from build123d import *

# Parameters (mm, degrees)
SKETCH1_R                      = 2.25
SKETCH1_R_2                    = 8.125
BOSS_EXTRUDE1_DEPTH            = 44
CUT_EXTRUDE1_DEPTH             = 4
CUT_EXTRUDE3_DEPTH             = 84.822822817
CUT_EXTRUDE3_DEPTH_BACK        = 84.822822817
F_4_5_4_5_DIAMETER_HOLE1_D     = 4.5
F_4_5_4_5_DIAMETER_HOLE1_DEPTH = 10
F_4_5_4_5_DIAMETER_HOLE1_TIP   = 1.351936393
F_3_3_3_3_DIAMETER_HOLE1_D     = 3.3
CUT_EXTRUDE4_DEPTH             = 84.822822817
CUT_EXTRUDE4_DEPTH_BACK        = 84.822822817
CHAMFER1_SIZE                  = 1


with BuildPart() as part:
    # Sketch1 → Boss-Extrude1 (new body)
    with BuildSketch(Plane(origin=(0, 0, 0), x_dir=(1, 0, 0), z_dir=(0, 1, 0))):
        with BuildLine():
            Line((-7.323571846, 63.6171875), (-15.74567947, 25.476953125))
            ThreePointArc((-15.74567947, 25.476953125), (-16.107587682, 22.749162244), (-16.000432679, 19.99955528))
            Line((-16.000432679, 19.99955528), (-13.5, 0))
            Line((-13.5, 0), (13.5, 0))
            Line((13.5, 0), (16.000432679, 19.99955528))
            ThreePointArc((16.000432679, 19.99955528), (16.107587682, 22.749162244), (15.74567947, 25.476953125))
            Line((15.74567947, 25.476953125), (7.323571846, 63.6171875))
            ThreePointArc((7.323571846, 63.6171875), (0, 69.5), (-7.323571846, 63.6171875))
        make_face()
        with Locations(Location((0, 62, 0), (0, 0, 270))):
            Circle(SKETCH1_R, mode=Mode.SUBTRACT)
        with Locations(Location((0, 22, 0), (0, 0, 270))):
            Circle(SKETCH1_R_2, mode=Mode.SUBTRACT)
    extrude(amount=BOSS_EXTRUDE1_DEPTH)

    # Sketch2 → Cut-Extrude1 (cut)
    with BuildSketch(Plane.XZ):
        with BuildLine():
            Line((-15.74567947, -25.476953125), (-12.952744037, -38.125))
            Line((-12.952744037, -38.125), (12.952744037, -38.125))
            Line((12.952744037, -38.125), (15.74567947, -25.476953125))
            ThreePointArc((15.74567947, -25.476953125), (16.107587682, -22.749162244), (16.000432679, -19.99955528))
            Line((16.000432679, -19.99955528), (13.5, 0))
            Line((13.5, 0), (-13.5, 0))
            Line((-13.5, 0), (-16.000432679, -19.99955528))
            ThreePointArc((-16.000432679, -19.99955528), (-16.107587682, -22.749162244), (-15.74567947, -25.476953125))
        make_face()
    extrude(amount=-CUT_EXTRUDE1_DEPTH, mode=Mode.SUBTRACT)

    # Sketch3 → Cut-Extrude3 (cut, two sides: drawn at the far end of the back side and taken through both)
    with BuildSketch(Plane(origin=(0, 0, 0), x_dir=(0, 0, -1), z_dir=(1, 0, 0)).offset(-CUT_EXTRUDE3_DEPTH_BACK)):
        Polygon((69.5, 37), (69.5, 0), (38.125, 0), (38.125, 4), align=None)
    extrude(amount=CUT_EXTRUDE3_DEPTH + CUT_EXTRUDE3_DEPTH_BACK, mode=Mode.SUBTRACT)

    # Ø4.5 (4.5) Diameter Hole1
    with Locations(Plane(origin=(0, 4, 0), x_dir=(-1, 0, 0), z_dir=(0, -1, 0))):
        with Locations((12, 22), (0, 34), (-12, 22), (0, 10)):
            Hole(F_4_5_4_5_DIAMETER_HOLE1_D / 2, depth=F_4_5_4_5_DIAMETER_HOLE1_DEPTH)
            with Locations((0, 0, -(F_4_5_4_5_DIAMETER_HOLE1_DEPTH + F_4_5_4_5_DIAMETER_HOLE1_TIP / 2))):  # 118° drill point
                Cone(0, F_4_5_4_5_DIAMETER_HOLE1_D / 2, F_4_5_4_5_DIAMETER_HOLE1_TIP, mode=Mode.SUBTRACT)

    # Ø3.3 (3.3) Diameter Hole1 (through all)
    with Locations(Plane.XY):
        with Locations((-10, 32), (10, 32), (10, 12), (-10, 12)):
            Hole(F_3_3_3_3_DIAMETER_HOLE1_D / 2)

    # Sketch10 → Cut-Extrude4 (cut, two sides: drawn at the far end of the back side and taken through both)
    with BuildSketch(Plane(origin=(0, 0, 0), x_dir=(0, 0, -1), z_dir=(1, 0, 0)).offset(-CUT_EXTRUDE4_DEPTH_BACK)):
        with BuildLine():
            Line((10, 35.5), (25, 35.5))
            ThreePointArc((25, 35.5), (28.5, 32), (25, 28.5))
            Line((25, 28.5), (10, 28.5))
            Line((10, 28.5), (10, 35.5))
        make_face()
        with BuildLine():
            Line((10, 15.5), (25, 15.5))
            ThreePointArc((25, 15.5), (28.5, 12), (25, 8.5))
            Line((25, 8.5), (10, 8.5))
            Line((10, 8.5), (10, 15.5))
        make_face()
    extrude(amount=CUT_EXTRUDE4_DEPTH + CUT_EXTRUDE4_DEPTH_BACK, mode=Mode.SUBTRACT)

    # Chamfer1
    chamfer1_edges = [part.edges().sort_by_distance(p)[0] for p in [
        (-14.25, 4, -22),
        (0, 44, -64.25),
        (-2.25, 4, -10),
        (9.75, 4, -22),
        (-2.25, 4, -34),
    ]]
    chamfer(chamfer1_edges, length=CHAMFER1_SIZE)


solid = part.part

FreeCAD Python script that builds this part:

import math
import FreeCAD as App
import Part
import Sketcher
Q = App.Units.Quantity


def edges_at(feature, points):
    """Names of the edges that pass closest to the given points."""
    edges = feature.Shape.Edges
    near = lambda p: min(range(len(edges)), key=lambda i: edges[i].distToShape(Part.Vertex(*p))[0])
    return sorted({f"Edge{near(p) + 1}" for p in points})


def add_polygon(sketch, points):
    """Adds a closed chain of lines whose ends are joined by coincident constraints."""
    first, n = sketch.GeometryCount, len(points)
    for a, b in zip(points, points[1:] + points[:1]):
        sketch.addGeometry(Part.LineSegment(App.Vector(*a, 0), App.Vector(*b, 0)), False)
    for i in range(n):
        sketch.addConstraint(Sketcher.Constraint("Coincident", first + i, 2, first + (i + 1) % n, 1))

doc = App.newDocument("Part")
body = doc.addObject("PartDesign::Body", "Body")

# Sketch on XZ plane
sketch1 = doc.addObject("Sketcher::SketchObject", "Sketch")
body.addObject(sketch1)
sketch1.AttachmentSupport = (doc.XZ_Plane, [""])
sketch1.MapMode = "FlatFace"
sketch1.addGeometry([
    Part.LineSegment(App.Vector(-7.3, -63.6, 0), App.Vector(-15.7, -25.5, 0)),  # 0
    Part.ArcOfCircle(Part.Circle(App.Vector(0, -22, 0), App.Vector(0, 0, 1), 16.1), math.radians(172.87), math.radians(192.45)),  # 1
    Part.LineSegment(App.Vector(-16, -20, 0), App.Vector(-13.5, 0, 0)),  # 2
    Part.LineSegment(App.Vector(-13.5, 0, 0), App.Vector(13.5, 0, 0)),  # 3
    Part.LineSegment(App.Vector(13.5, 0, 0), App.Vector(16, -20, 0)),  # 4
    Part.ArcOfCircle(Part.Circle(App.Vector(0, -22, 0), App.Vector(0, 0, 1), 16.1), math.radians(-12.45), math.radians(7.13)),  # 5
    Part.LineSegment(App.Vector(15.7, -25.5, 0), App.Vector(7.3, -63.6, 0)),  # 6
    Part.ArcOfCircle(Part.Circle(App.Vector(0, -62, 0), App.Vector(0, 0, 1), 7.5), math.radians(-168), math.radians(-12)),  # 7
    Part.Circle(App.Vector(0, -22, 0), App.Vector(0, 0, 1), 8.1),  # 8
    Part.Circle(App.Vector(0, -62, 0), App.Vector(0, 0, 1), 2.2),  # 9
], False)
sketch1.addConstraint([
    Sketcher.Constraint("Tangent", 0, 2, 1, 2),
    Sketcher.Constraint("Tangent", 1, 1, 2, 1),
    Sketcher.Constraint("Coincident", 2, 2, 3, 1),
    Sketcher.Constraint("Coincident", 3, 2, 4, 1),
    Sketcher.Constraint("Tangent", 4, 2, 5, 2),
    Sketcher.Constraint("Tangent", 5, 1, 6, 1),
    Sketcher.Constraint("Tangent", 6, 2, 7, 2),
    Sketcher.Constraint("Tangent", 7, 1, 0, 1),
    Sketcher.Constraint("Horizontal", 3),
    Sketcher.Constraint("Coincident", 5, 3, 1, 3),
    Sketcher.Constraint("Coincident", 8, 3, 1, 3),
    Sketcher.Constraint("Coincident", 9, 3, 7, 3),
    Sketcher.Constraint("Equal", 1, 5),
    Sketcher.Constraint("Symmetric", 2, 2, 3, 2, -1, 1),
    Sketcher.Constraint("Symmetric", 0, 2, 5, 1, -2),
    Sketcher.Constraint("Diameter", 9, Q("4.5 mm")),
    Sketcher.Constraint("Radius", 7, Q("7.5 mm")),
    Sketcher.Constraint("Diameter", 8, Q("16.25 mm")),
    Sketcher.Constraint("DistanceX", 3, 1, 3, 2, Q("27 mm")),
    Sketcher.Constraint("DistanceY", 1, 3, -1, 1, Q("22 mm")),
    Sketcher.Constraint("DistanceY", 7, 3, -1, 1, Q("62 mm")),
    Sketcher.Constraint("Radius", 1, Q("16.125 mm")),
])
pad1 = doc.addObject("PartDesign::Pad", "Pad")
body.addObject(pad1)
pad1.Profile = sketch1
pad1.Length = 44
pad1.Reversed = True

# Sketch on XZ plane
sketch2 = doc.addObject("Sketcher::SketchObject", "Sketch001")
body.addObject(sketch2)
sketch2.AttachmentSupport = (doc.XZ_Plane, [""])
sketch2.MapMode = "FlatFace"
sketch2.addGeometry([
    Part.LineSegment(App.Vector(-16, -25, 0), App.Vector(-13, -38, 0)),  # 0
    Part.LineSegment(App.Vector(-13, -38, 0), App.Vector(13, -38, 0)),  # 1
    Part.LineSegment(App.Vector(13, -38, 0), App.Vector(16, -25, 0)),  # 2
    Part.ArcOfCircle(Part.Circle(App.Vector(0, -22, 0), App.Vector(0, 0, 1), 16), math.radians(-12.45), math.radians(7.13)),  # 3
    Part.LineSegment(App.Vector(16, -20, 0), App.Vector(14, 0, 0)),  # 4
    Part.LineSegment(App.Vector(14, 0, 0), App.Vector(-14, 0, 0)),  # 5
    Part.LineSegment(App.Vector(-14, 0, 0), App.Vector(-16, -20, 0)),  # 6
    Part.ArcOfCircle(Part.Circle(App.Vector(0, -22, 0), App.Vector(0, 0, 1), 16), math.radians(172.87), math.radians(192.45)),  # 7
], False)
sketch2.addConstraint([
    Sketcher.Constraint("Coincident", 0, 2, 1, 1),
    Sketcher.Constraint("Coincident", 1, 2, 2, 1),
    Sketcher.Constraint("Tangent", 2, 2, 3, 1),
    Sketcher.Constraint("Tangent", 3, 2, 4, 1),
    Sketcher.Constraint("Coincident", 4, 2, 5, 1),
    Sketcher.Constraint("Coincident", 5, 2, 6, 1),
    Sketcher.Constraint("Tangent", 6, 2, 7, 1),
    Sketcher.Constraint("Tangent", 7, 2, 0, 1),
    Sketcher.Constraint("Horizontal", 1),
    Sketcher.Constraint("Horizontal", 5),
    Sketcher.Constraint("Coincident", 7, 3, 3, 3),
    Sketcher.Constraint("Equal", 3, 7),
    Sketcher.Constraint("Symmetric", 4, 2, 5, 2, -1, 1),
    Sketcher.Constraint("Symmetric", 2, 2, 7, 2, -2),
    Sketcher.Constraint("DistanceX", 5, 2, 5, 1, Q("27 mm")),
    Sketcher.Constraint("DistanceY", 3, 3, -1, 1, Q("22 mm")),
    Sketcher.Constraint("Radius", 3, Q("16.125 mm")),
    Sketcher.Constraint("DistanceY", 0, 2, -1, 1, Q("38.125 mm")),
    Sketcher.Constraint("DistanceX", 1, 1, 1, 2, Q("25.905488 mm")),
])
pocket1 = doc.addObject("PartDesign::Pocket", "Pocket")
body.addObject(pocket1)
pocket1.Profile = sketch2
pocket1.Length = 4

# Sketch on YZ plane
sketch3 = doc.addObject("Sketcher::SketchObject", "Sketch002")
body.addObject(sketch3)
sketch3.AttachmentSupport = (doc.YZ_Plane, [""])
sketch3.MapMode = "FlatFace"
add_polygon(sketch3, [(0, -69.5), (37, -69.5), (4, -38.1), (0, -38.1)])  # lines 0-3
sketch3.addConstraint([
    Sketcher.Constraint("Horizontal", 0),
    Sketcher.Constraint("Horizontal", 2),
    Sketcher.Constraint("Vertical", 3),
    Sketcher.Constraint("PointOnObject", 2, 2, -2),
    Sketcher.Constraint("DistanceX", 0, 1, 0, 2, Q("37 mm")),
    Sketcher.Constraint("DistanceX", 2, 2, 2, 1, Q("4 mm")),
    Sketcher.Constraint("DistanceY", 0, 2, -1, 1, Q("69.5 mm")),
    Sketcher.Constraint("DistanceY", 3, 2, 3, 1, Q("31.375 mm")),
])
pocket2 = doc.addObject("PartDesign::Pocket", "Pocket001")
body.addObject(pocket2)
pocket2.Profile = sketch3
pocket2.Type = "ThroughAll"
pocket2.Midplane = True

# Sketch on XZ plane
sketch4 = doc.addObject("Sketcher::SketchObject", "Sketch003")
body.addObject(sketch4)
sketch4.AttachmentSupport = (doc.XZ_Plane, [""])
sketch4.MapMode = "FlatFace"
sketch4.AttachmentOffset = App.Placement(App.Vector(0, 0, -4), App.Rotation())
sketch4.addGeometry([
    Part.Circle(App.Vector(-12, -22, 0), App.Vector(0, 0, 1), 2.2),
    Part.Circle(App.Vector(0, -34, 0), App.Vector(0, 0, 1), 2.2),
    Part.Circle(App.Vector(12, -22, 0), App.Vector(0, 0, 1), 2.2),
    Part.Circle(App.Vector(0, -10, 0), App.Vector(0, 0, 1), 2.2),
], False)
sketch4.addConstraint([
    Sketcher.Constraint("Equal", 0, 1),
    Sketcher.Constraint("Equal", 1, 2),
    Sketcher.Constraint("Equal", 2, 3),
    Sketcher.Constraint("Symmetric", 0, 3, 2, 3, -2),
    Sketcher.Constraint("PointOnObject", 1, 3, -2),
    Sketcher.Constraint("PointOnObject", 3, 3, -2),
    Sketcher.Constraint("Diameter", 0, Q("4.5 mm")),
    Sketcher.Constraint("DistanceX", 0, 3, -1, 1, Q("12 mm")),
    Sketcher.Constraint("DistanceY", 0, 3, -1, 1, Q("22 mm")),
    Sketcher.Constraint("DistanceY", 1, 3, -1, 1, Q("34 mm")),
    Sketcher.Constraint("DistanceY", 3, 3, -1, 1, Q("10 mm")),
])
doc.recompute()
hole = doc.addObject("PartDesign::Hole", "Hole")
body.addObject(hole)
hole.Profile = sketch4
hole.ThreadType = "None"
hole.Diameter = 4.5
hole.DepthType = "Dimension"
hole.Depth = 10
hole.DrillPoint = "Angled"
hole.DrillPointAngle = 118

# Sketch on XY plane
sketch5 = doc.addObject("Sketcher::SketchObject", "Sketch004")
body.addObject(sketch5)
sketch5.AttachmentSupport = (doc.XY_Plane, [""])
sketch5.MapMode = "FlatFace"
sketch5.addGeometry([
    Part.Circle(App.Vector(-10, 32, 0), App.Vector(0, 0, 1), 1.6),
    Part.Circle(App.Vector(10, 32, 0), App.Vector(0, 0, 1), 1.6),
    Part.Circle(App.Vector(10, 12, 0), App.Vector(0, 0, 1), 1.6),
    Part.Circle(App.Vector(-10, 12, 0), App.Vector(0, 0, 1), 1.6),
], False)
sketch5.addConstraint([
    Sketcher.Constraint("Equal", 0, 1),
    Sketcher.Constraint("Equal", 1, 2),
    Sketcher.Constraint("Equal", 2, 3),
    Sketcher.Constraint("Symmetric", 0, 3, 1, 3, -2),
    Sketcher.Constraint("Symmetric", 2, 3, 3, 3, -2),
    Sketcher.Constraint("Vertical", 1, 3, 2, 3),
    Sketcher.Constraint("Diameter", 0, Q("3.3 mm")),
    Sketcher.Constraint("DistanceX", 0, 3, -1, 1, Q("10 mm")),
    Sketcher.Constraint("DistanceY", -1, 1, 0, 3, Q("32 mm")),
    Sketcher.Constraint("DistanceY", -1, 1, 2, 3, Q("12 mm")),
])
doc.recompute()
hole2 = doc.addObject("PartDesign::Hole", "Hole001")
body.addObject(hole2)
hole2.Profile = sketch5
hole2.ThreadType = "None"
hole2.Diameter = 3.3
hole2.DepthType = "ThroughAll"

# Sketch on YZ plane
sketch6 = doc.addObject("Sketcher::SketchObject", "Sketch005")
body.addObject(sketch6)
sketch6.AttachmentSupport = (doc.YZ_Plane, [""])
sketch6.MapMode = "FlatFace"
sketch6.addGeometry([
    Part.LineSegment(App.Vector(35.5, -25, 0), App.Vector(35.5, -10, 0)),  # 0
    Part.LineSegment(App.Vector(35.5, -10, 0), App.Vector(28.5, -10, 0)),  # 1
    Part.LineSegment(App.Vector(28.5, -10, 0), App.Vector(28.5, -25, 0)),  # 2
    Part.ArcOfCircle(Part.Circle(App.Vector(32, -25, 0), App.Vector(0, 0, 1), 3.5), math.radians(180), math.radians(360)),  # 3
    Part.LineSegment(App.Vector(15.5, -25, 0), App.Vector(15.5, -10, 0)),  # 4
    Part.LineSegment(App.Vector(15.5, -10, 0), App.Vector(8.5, -10, 0)),  # 5
    Part.LineSegment(App.Vector(8.5, -10, 0), App.Vector(8.5, -25, 0)),  # 6
    Part.ArcOfCircle(Part.Circle(App.Vector(12, -25, 0), App.Vector(0, 0, 1), 3.5), math.radians(180), math.radians(360)),  # 7
], False)
sketch6.addConstraint([
    Sketcher.Constraint("Coincident", 0, 2, 1, 1),
    Sketcher.Constraint("Coincident", 1, 2, 2, 1),
    Sketcher.Constraint("Tangent", 2, 2, 3, 1),
    Sketcher.Constraint("Tangent", 3, 2, 0, 1),
    Sketcher.Constraint("Coincident", 4, 2, 5, 1),
    Sketcher.Constraint("Coincident", 5, 2, 6, 1),
    Sketcher.Constraint("Tangent", 6, 2, 7, 1),
    Sketcher.Constraint("Tangent", 7, 2, 4, 1),
    Sketcher.Constraint("Vertical", 0),
    Sketcher.Constraint("Horizontal", 1),
    Sketcher.Constraint("Vertical", 2),
    Sketcher.Constraint("Vertical", 4),
    Sketcher.Constraint("Horizontal", 5),
    Sketcher.Constraint("Vertical", 6),
    Sketcher.Constraint("Equal", 3, 7),
    Sketcher.Constraint("Horizontal", 3, 3, 7, 3),
    Sketcher.Constraint("Horizontal", 1, 2, 4, 2),
    Sketcher.Constraint("Radius", 3, Q("3.5 mm")),
    Sketcher.Constraint("DistanceY", 0, 1, 0, 2, Q("15 mm")),
    Sketcher.Constraint("DistanceX", -1, 1, 3, 3, Q("32 mm")),
    Sketcher.Constraint("DistanceY", 3, 3, -1, 1, Q("25 mm")),
    Sketcher.Constraint("DistanceX", -1, 1, 7, 3, Q("12 mm")),
])
pocket3 = doc.addObject("PartDesign::Pocket", "Pocket002")
body.addObject(pocket3)
pocket3.Profile = sketch6
pocket3.Type = "ThroughAll"
pocket3.Midplane = True
doc.recompute()

chamfer = doc.addObject("PartDesign::Chamfer", "Chamfer")
body.addObject(chamfer)
chamfer.Base = (pocket3, edges_at(pocket3, [
    (-14.25, 4, -22),
    (0, 44, -64.25),
    (-2.25, 4, -10),
    (9.75, 4, -22),
    (-2.25, 4, -34),
]))
chamfer.Size = 1

doc.recompute()
